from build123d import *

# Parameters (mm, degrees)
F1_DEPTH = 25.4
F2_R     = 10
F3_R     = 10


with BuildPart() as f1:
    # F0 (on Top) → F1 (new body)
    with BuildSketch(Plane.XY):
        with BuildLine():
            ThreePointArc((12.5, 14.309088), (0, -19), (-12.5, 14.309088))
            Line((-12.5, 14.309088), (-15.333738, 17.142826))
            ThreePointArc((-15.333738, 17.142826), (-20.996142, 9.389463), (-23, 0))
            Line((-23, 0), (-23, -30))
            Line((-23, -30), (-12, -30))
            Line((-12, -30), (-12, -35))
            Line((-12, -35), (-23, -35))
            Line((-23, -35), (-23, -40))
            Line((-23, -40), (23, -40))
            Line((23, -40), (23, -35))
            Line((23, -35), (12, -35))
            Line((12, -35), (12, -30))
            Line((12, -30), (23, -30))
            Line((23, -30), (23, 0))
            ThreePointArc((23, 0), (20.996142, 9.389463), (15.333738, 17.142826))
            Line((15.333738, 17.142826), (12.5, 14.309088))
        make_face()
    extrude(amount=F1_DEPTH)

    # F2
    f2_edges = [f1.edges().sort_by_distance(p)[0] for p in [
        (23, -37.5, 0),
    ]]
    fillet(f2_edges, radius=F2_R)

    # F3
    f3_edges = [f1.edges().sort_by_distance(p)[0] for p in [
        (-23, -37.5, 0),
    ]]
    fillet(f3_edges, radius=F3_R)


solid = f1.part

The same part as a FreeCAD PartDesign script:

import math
import FreeCAD as App
import Part
import Sketcher
Q = App.Units.Quantity


def edges_at(feature, points):
    """Names of the edges that pass closest to the given points."""
    edges = feature.Shape.Edges
    near = lambda p: min(range(len(edges)), key=lambda i: edges[i].distToShape(Part.Vertex(*p))[0])
    return sorted({f"Edge{near(p) + 1}" for p in points})

doc = App.newDocument("Part")
body = doc.addObject("PartDesign::Body", "Body")

# Sketch on XY plane
sketch1 = body.newObject("Sketcher::SketchObject", "Sketch")
sketch1.AttachmentSupport = (doc.getObject("XY_Plane"), [""])
sketch1.MapMode = "FlatFace"
sketch1.addGeometry([
    Part.ArcOfCircle(Part.Circle(App.Vector(0, 0, 0), App.Vector(0, 0, 1), 19), math.radians(131.13951), math.radians(408.86049)),  # 0
    Part.LineSegment(App.Vector(-12.5, 14.309088, 0), App.Vector(-15.333738, 17.142826, 0)),  # 1
    Part.ArcOfCircle(Part.Circle(App.Vector(0.000002, -0.000001, 0), App.Vector(0, 0, 1), 23.000002), math.radians(131.811669), math.radians(179.999998)),  # 2
    Part.LineSegment(App.Vector(-23, 0, 0), App.Vector(-23, -30, 0)),  # 3
    Part.LineSegment(App.Vector(-23, -30, 0), App.Vector(-12, -30, 0)),  # 4
    Part.LineSegment(App.Vector(-12, -30, 0), App.Vector(-12, -35, 0)),  # 5
    Part.LineSegment(App.Vector(-12, -35, 0), App.Vector(-23, -35, 0)),  # 6
    Part.LineSegment(App.Vector(-23, -35, 0), App.Vector(-23, -40, 0)),  # 7
    Part.LineSegment(App.Vector(-23, -40, 0), App.Vector(23, -40, 0)),  # 8
    Part.LineSegment(App.Vector(23, -40, 0), App.Vector(23, -35, 0)),  # 9
    Part.LineSegment(App.Vector(23, -35, 0), App.Vector(12, -35, 0)),  # 10
    Part.LineSegment(App.Vector(12, -35, 0), App.Vector(12, -30, 0)),  # 11
    Part.LineSegment(App.Vector(12, -30, 0), App.Vector(23, -30, 0)),  # 12
    Part.LineSegment(App.Vector(23, -30, 0), App.Vector(23, 0, 0)),  # 13
    Part.ArcOfCircle(Part.Circle(App.Vector(-0.000002, -0.000001, 0), App.Vector(0, 0, 1), 23.000002), math.radians(0.000002), math.radians(48.188331)),  # 14
    Part.LineSegment(App.Vector(15.333738, 17.142826, 0), App.Vector(12.5, 14.309088, 0)),  # 15
], False)
sketch1.addConstraint([
    Sketcher.Constraint("Coincident", 0, 1, 1, 1),
    Sketcher.Constraint("Coincident", 1, 2, 2, 1),
    Sketcher.Constraint("Tangent", 2, 2, 3, 1),
    Sketcher.Constraint("Coincident", 3, 2, 4, 1),
    Sketcher.Constraint("Coincident", 4, 2, 5, 1),
    Sketcher.Constraint("Coincident", 5, 2, 6, 1),
    Sketcher.Constraint("Coincident", 6, 2, 7, 1),
    Sketcher.Constraint("Coincident", 7, 2, 8, 1),
    Sketcher.Constraint("Coincident", 8, 2, 9, 1),
    Sketcher.Constraint("Coincident", 9, 2, 10, 1),
    Sketcher.Constraint("Coincident", 10, 2, 11, 1),
    Sketcher.Constraint("Coincident", 11, 2, 12, 1),
    Sketcher.Constraint("Coincident", 12, 2, 13, 1),
    Sketcher.Constraint("Tangent", 13, 2, 14, 1),
    Sketcher.Constraint("Coincident", 14, 2, 15, 1),
    Sketcher.Constraint("Coincident", 15, 2, 0, 2),
    Sketcher.Constraint("Vertical", 3),
    Sketcher.Constraint("Horizontal", 4),
    Sketcher.Constraint("Vertical", 5),
    Sketcher.Constraint("Horizontal", 6),
    Sketcher.Constraint("Vertical", 7),
    Sketcher.Constraint("Horizontal", 8),
    Sketcher.Constraint("Vertical", 9),
    Sketcher.Constraint("Horizontal", 10),
    Sketcher.Constraint("Vertical", 11),
    Sketcher.Constraint("Horizontal", 12),
    Sketcher.Constraint("Vertical", 13),
    Sketcher.Constraint("Coincident", 0, 3, -1, 1),
    Sketcher.Constraint("Coincident", 2, 3, -1, 1),
    Sketcher.Constraint("Coincident", 14, 3, -1, 1),
    Sketcher.Constraint("Equal", 2, 14),
    Sketcher.Constraint("Symmetric", 6, 2, 9, 2, -2),
    Sketcher.Constraint("Symmetric", 4, 2, 11, 2, -2),
    Sketcher.Constraint("Perpendicular", 1, 15),
    Sketcher.Constraint("Horizontal", 1, 2, 14, 2),
    Sketcher.Constraint("Horizontal", 0, 1, 15, 2),
    Sketcher.Constraint("Vertical", 3, 2, 6, 2),
    Sketcher.Constraint("Equal", 5, 7),
    Sketcher.Constraint("Radius", 0, Q("19 mm")),
    Sketcher.Constraint("Radius", 2, Q("23.000002 mm")),
    Sketcher.Constraint("DistanceX", 4, 1, 4, 2, Q("11 mm")),
    Sketcher.Constraint("DistanceY", 3, 2, 3, 1, Q("30 mm")),
    Sketcher.Constraint("DistanceY", 5, 2, 5, 1, Q("5 mm")),
    Sketcher.Constraint("DistanceX", 0, 1, -1, 1, Q("12.5 mm")),
])
pad1 = body.newObject("PartDesign::Pad", "Pad")
pad1.Profile = sketch1
pad1.Length = 25.4
doc.recompute()

fillet = body.newObject("PartDesign::Fillet", "Fillet")
fillet.Base = (pad1, edges_at(pad1, [(23, -37.5, 0)]))
fillet.Radius = 10
doc.recompute()

fillet2 = body.newObject("PartDesign::Fillet", "Fillet001")
fillet2.Base = (fillet, edges_at(fillet, [(-23, -37.5, 0)]))
fillet2.Radius = 10

doc.recompute()
